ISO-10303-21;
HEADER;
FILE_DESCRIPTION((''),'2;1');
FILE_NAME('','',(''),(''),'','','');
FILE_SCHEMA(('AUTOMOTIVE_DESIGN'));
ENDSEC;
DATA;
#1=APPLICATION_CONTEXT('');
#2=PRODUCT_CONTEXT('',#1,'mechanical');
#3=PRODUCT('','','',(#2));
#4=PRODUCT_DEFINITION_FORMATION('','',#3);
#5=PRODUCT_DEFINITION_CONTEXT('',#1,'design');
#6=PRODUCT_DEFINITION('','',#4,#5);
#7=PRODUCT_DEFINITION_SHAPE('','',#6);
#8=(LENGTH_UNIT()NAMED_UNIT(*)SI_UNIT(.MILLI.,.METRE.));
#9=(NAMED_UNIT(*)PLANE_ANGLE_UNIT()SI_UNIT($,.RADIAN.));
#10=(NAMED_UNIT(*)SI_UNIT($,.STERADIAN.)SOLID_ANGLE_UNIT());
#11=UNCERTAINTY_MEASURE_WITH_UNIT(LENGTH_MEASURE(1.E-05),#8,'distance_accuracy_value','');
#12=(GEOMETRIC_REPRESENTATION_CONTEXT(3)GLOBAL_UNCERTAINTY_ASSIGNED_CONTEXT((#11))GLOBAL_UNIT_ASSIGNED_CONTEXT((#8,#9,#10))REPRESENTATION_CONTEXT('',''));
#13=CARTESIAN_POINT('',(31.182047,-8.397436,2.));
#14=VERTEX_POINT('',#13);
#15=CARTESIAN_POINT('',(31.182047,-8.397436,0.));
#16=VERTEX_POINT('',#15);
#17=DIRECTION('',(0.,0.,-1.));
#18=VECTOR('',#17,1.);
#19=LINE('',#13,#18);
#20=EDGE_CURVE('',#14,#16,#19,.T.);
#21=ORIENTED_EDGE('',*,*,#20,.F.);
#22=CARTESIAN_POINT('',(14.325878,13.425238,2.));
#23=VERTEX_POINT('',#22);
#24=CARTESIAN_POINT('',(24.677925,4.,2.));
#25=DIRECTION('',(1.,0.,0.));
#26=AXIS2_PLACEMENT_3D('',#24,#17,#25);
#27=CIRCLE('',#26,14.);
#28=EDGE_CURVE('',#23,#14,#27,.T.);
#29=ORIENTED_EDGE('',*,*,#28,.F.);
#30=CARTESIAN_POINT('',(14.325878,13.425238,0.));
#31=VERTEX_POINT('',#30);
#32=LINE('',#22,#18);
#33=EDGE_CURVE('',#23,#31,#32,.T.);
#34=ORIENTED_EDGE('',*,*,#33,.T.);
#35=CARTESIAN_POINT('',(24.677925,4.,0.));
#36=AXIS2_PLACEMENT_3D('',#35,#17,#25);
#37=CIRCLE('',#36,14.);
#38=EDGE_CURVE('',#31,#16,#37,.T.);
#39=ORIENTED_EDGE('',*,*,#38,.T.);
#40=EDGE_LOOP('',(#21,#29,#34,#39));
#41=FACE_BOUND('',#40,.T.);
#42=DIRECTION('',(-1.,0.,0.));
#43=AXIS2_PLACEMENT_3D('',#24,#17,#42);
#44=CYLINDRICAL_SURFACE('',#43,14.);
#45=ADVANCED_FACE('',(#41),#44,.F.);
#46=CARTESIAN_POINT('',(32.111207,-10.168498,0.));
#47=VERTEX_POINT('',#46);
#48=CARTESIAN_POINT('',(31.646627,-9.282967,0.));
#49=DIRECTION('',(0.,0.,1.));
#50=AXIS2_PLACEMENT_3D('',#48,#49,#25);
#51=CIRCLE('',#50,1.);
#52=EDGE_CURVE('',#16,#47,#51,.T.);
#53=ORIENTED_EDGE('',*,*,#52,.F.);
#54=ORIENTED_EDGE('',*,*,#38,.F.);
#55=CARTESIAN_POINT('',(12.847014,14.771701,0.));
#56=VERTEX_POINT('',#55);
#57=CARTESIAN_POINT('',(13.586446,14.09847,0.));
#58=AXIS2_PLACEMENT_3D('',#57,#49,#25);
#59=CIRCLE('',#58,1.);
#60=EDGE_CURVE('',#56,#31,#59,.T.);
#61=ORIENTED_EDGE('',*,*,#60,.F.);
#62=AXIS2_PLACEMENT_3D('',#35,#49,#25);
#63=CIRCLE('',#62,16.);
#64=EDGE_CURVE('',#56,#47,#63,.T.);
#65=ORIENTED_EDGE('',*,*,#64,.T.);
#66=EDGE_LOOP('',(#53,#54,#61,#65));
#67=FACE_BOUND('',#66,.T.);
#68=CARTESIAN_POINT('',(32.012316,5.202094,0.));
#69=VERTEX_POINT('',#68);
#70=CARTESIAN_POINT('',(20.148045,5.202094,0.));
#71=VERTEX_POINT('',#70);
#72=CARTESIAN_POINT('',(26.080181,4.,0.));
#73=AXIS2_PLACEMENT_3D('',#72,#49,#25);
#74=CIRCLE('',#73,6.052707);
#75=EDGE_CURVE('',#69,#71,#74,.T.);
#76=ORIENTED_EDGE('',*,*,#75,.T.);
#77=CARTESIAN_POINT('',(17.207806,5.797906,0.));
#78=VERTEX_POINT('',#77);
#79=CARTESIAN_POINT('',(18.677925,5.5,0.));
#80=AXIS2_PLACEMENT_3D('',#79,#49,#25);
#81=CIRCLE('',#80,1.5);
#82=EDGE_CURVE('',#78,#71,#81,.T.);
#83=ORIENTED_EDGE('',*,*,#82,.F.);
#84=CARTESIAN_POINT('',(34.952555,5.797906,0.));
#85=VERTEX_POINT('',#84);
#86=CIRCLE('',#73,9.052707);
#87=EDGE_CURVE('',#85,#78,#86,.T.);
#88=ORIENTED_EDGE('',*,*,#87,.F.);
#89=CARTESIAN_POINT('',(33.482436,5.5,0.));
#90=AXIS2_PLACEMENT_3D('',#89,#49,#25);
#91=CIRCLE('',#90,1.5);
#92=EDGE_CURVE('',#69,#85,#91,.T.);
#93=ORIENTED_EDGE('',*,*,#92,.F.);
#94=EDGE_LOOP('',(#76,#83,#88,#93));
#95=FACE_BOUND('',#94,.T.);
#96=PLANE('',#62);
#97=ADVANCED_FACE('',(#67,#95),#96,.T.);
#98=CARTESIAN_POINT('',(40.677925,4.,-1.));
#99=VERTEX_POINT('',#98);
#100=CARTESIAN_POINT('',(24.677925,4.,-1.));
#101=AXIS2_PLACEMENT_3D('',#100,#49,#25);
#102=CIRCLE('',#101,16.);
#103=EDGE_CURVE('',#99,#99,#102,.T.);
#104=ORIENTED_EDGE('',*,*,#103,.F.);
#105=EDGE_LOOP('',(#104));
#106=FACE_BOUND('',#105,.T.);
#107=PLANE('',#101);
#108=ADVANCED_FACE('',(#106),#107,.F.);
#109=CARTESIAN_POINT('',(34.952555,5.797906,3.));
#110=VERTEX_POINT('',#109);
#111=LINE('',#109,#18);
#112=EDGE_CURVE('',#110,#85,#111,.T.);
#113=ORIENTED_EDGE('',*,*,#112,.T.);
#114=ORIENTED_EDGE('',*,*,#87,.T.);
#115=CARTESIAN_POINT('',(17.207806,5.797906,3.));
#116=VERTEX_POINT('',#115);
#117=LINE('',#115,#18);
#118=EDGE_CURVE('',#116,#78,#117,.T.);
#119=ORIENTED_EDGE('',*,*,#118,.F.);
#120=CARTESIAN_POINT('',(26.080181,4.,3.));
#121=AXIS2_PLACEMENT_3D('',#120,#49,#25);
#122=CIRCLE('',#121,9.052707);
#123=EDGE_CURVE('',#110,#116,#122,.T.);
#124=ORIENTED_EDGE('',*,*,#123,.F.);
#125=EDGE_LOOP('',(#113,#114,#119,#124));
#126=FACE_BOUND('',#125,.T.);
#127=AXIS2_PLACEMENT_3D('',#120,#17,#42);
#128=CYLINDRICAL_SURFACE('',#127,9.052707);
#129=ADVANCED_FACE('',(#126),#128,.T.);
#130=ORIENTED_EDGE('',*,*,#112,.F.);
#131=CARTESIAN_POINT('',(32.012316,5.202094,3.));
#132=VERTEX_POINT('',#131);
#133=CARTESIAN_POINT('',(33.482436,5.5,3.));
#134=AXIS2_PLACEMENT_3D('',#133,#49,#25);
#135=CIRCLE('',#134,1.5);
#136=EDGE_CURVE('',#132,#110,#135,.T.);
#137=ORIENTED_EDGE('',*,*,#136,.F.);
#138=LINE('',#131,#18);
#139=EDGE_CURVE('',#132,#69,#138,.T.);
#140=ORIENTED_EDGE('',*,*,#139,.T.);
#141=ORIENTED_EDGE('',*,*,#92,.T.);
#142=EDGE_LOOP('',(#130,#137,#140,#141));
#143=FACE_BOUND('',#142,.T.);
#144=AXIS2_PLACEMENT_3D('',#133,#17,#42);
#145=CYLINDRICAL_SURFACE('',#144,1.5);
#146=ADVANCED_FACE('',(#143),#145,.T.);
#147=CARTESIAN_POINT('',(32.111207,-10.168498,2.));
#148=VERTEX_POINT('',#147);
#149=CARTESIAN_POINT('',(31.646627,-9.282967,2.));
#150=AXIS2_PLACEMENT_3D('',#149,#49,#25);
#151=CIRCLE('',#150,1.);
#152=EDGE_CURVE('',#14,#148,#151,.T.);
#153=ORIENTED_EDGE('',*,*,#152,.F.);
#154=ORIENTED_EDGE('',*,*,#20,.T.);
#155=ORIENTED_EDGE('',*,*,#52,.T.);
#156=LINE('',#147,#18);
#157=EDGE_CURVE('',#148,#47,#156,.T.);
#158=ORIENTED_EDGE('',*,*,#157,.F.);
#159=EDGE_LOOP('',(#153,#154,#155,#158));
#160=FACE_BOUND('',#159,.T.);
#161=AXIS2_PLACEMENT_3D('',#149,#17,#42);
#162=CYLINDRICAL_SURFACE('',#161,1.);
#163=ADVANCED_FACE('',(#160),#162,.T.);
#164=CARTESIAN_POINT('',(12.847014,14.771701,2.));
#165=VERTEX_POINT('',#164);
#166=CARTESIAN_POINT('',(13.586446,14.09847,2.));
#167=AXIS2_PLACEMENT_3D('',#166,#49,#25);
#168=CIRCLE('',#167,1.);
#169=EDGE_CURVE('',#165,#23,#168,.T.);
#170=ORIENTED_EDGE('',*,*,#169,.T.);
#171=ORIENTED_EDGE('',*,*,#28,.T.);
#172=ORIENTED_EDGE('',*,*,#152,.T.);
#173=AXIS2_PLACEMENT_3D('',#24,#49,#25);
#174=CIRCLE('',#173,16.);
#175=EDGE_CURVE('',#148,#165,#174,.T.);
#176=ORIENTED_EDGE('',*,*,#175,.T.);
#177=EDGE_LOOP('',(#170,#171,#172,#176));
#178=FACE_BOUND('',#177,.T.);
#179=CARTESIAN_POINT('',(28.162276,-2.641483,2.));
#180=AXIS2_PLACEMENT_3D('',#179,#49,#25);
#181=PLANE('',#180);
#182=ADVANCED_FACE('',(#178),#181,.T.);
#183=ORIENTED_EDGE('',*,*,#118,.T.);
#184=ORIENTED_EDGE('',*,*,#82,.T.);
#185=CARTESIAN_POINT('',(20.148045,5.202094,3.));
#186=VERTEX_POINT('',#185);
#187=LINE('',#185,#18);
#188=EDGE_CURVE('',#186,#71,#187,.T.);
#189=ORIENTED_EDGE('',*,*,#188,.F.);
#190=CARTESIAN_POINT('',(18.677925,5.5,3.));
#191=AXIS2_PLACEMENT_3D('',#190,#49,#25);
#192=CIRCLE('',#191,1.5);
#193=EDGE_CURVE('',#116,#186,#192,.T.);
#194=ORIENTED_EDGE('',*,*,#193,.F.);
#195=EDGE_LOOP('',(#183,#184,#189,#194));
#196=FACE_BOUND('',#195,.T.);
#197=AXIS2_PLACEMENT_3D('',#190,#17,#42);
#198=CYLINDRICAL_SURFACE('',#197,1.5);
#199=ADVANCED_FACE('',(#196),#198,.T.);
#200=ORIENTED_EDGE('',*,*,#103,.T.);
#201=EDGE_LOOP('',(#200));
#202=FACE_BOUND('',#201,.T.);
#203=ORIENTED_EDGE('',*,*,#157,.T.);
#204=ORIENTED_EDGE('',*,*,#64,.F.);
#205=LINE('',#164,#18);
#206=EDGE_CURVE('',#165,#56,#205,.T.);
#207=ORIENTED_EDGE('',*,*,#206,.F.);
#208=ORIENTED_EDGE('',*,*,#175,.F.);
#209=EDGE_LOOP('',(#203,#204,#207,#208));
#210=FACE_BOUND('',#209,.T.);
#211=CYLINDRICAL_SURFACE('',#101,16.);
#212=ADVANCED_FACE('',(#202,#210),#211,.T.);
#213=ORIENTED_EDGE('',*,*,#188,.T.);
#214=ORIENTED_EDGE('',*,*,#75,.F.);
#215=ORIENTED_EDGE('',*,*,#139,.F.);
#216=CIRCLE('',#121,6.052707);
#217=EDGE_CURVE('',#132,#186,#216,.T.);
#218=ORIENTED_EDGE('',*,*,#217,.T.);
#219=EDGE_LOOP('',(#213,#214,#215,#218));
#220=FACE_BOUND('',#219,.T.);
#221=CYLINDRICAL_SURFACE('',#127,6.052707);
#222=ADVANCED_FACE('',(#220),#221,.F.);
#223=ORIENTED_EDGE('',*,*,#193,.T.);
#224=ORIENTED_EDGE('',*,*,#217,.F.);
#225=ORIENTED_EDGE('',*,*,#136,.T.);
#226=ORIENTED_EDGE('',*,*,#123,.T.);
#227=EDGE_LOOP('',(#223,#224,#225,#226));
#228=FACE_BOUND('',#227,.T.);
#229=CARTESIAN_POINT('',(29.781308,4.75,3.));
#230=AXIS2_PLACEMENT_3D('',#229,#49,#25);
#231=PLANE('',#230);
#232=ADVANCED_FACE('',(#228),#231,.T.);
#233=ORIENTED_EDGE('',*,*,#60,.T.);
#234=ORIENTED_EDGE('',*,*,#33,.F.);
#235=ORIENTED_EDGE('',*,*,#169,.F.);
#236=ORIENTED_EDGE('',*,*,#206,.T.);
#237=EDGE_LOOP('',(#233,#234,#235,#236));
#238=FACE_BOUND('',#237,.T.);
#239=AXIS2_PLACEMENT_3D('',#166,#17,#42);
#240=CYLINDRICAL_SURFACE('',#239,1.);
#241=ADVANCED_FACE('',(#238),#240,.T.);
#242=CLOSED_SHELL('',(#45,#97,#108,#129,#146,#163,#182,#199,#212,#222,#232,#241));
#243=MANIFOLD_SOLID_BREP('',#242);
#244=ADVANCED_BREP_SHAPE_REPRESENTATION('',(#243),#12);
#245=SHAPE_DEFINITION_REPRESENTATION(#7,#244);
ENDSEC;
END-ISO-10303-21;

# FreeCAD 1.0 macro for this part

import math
import FreeCAD as App
import Part
import Sketcher

V = App.Vector
Q = App.Units.Quantity

doc = App.newDocument("Part")
body = doc.addObject("PartDesign::Body", "Body")

sketch1 = body.newObject("Sketcher::SketchObject", "Sketch")
sketch1.AttachmentSupport = (doc.getObject("XY_Plane"), [""])
sketch1.MapMode = "FlatFace"
sketch1.addGeometry(Part.Circle(V(25, 4, 0), V(0, 0, 1), 16), False)
sketch1.addConstraint([
    Sketcher.Constraint("Diameter", 0, Q("32 mm")),
    Sketcher.Constraint("DistanceY", -1, 1, 0, 3, Q("4 mm")),
    Sketcher.Constraint("DistanceX", -1, 1, 0, 3, Q("24.677925 mm")),
])
pad1 = body.newObject("PartDesign::Pad", "Pad")
pad1.Profile = sketch1
pad1.Length = 1
pad1.Reversed = True

sketch2 = body.newObject("Sketcher::SketchObject", "Sketch001")
sketch2.AttachmentSupport = (doc.getObject("XY_Plane"), [""])
sketch2.MapMode = "FlatFace"
sketch2.addGeometry([
    Part.ArcOfCircle(Part.Circle(V(26.1, 4, 0), V(0, 0, 1), 9.1), math.radians(11), math.radians(169)),
    Part.ArcOfCircle(Part.Circle(V(18.7, 5.5, 0), V(0, 0, 1), 1.5), math.radians(169), math.radians(349)),
    Part.ArcOfCircle(Part.Circle(V(26.1, 4, 0), V(0, 0, 1), 6.1), math.radians(11), math.radians(169)),
    Part.ArcOfCircle(Part.Circle(V(33.5, 5.5, 0), V(0, 0, 1), 1.5), math.radians(-169), math.radians(11)),
], False)
sketch2.addConstraint([
    Sketcher.Constraint("Tangent", 0, 2, 1, 1),
    Sketcher.Constraint("Tangent", 1, 2, 2, 2),
    Sketcher.Constraint("Tangent", 2, 1, 3, 1),
    Sketcher.Constraint("Tangent", 3, 2, 0, 1),
    Sketcher.Constraint("Coincident", 2, 3, 0, 3),
    Sketcher.Constraint("Horizontal", 1, 3, 3, 3),
    Sketcher.Constraint("Radius", 1, Q("1.5 mm")),
    Sketcher.Constraint("DistanceY", -1, 1, 0, 3, Q("4 mm")),
    Sketcher.Constraint("DistanceY", -1, 1, 1, 3, Q("5.5 mm")),
    Sketcher.Constraint("Radius", 0, Q("9.052707 mm")),
    Sketcher.Constraint("DistanceX", -1, 1, 0, 3, Q("26.080181 mm")),
])
pad2 = body.newObject("PartDesign::Pad", "Pad001")
pad2.Profile = sketch2
pad2.Length = 3

sketch3 = body.newObject("Sketcher::SketchObject", "Sketch002")
sketch3.AttachmentSupport = (doc.getObject("XY_Plane"), [""])
sketch3.MapMode = "FlatFace"
sketch3.AttachmentOffset = App.Placement(V(0, 0, 2), App.Rotation())
sketch3.addGeometry([
    Part.ArcOfCircle(Part.Circle(V(24.7, 4, 0), V(0, 0, 1), 16), math.radians(-62), math.radians(138)),
    Part.ArcOfCircle(Part.Circle(V(13.6, 14.1, 0), V(0, 0, 1), 1), math.radians(138), math.radians(318)),
    Part.ArcOfCircle(Part.Circle(V(24.7, 4, 0), V(0, 0, 1), 14), math.radians(-62), math.radians(138)),
    Part.ArcOfCircle(Part.Circle(V(31.6, -9.3, 0), V(0, 0, 1), 1), math.radians(118), math.radians(298)),
], False)
sketch3.addConstraint([
    Sketcher.Constraint("Tangent", 0, 2, 1, 1),
    Sketcher.Constraint("Tangent", 1, 2, 2, 2),
    Sketcher.Constraint("Tangent", 2, 1, 3, 1),
    Sketcher.Constraint("Tangent", 3, 2, 0, 1),
    Sketcher.Constraint("Coincident", 2, 3, 0, 3),
    Sketcher.Constraint("Radius", 0, Q("16 mm")),
    Sketcher.Constraint("Radius", 1, Q("1 mm")),
    Sketcher.Constraint("DistanceY", -1, 1, 0, 3, Q("4 mm")),
    Sketcher.Constraint("DistanceY", -1, 1, 0, 2, Q("14.771701 mm")),
    Sketcher.Constraint("DistanceX", 2, 3, 3, 3, Q("6.968701 mm")),
    Sketcher.Constraint("DistanceX", -1, 1, 0, 3, Q("24.677925 mm")),
])
pad3 = body.newObject("PartDesign::Pad", "Pad002")
pad3.Profile = sketch3
pad3.Length = 2
pad3.Reversed = True

doc.recompute()
